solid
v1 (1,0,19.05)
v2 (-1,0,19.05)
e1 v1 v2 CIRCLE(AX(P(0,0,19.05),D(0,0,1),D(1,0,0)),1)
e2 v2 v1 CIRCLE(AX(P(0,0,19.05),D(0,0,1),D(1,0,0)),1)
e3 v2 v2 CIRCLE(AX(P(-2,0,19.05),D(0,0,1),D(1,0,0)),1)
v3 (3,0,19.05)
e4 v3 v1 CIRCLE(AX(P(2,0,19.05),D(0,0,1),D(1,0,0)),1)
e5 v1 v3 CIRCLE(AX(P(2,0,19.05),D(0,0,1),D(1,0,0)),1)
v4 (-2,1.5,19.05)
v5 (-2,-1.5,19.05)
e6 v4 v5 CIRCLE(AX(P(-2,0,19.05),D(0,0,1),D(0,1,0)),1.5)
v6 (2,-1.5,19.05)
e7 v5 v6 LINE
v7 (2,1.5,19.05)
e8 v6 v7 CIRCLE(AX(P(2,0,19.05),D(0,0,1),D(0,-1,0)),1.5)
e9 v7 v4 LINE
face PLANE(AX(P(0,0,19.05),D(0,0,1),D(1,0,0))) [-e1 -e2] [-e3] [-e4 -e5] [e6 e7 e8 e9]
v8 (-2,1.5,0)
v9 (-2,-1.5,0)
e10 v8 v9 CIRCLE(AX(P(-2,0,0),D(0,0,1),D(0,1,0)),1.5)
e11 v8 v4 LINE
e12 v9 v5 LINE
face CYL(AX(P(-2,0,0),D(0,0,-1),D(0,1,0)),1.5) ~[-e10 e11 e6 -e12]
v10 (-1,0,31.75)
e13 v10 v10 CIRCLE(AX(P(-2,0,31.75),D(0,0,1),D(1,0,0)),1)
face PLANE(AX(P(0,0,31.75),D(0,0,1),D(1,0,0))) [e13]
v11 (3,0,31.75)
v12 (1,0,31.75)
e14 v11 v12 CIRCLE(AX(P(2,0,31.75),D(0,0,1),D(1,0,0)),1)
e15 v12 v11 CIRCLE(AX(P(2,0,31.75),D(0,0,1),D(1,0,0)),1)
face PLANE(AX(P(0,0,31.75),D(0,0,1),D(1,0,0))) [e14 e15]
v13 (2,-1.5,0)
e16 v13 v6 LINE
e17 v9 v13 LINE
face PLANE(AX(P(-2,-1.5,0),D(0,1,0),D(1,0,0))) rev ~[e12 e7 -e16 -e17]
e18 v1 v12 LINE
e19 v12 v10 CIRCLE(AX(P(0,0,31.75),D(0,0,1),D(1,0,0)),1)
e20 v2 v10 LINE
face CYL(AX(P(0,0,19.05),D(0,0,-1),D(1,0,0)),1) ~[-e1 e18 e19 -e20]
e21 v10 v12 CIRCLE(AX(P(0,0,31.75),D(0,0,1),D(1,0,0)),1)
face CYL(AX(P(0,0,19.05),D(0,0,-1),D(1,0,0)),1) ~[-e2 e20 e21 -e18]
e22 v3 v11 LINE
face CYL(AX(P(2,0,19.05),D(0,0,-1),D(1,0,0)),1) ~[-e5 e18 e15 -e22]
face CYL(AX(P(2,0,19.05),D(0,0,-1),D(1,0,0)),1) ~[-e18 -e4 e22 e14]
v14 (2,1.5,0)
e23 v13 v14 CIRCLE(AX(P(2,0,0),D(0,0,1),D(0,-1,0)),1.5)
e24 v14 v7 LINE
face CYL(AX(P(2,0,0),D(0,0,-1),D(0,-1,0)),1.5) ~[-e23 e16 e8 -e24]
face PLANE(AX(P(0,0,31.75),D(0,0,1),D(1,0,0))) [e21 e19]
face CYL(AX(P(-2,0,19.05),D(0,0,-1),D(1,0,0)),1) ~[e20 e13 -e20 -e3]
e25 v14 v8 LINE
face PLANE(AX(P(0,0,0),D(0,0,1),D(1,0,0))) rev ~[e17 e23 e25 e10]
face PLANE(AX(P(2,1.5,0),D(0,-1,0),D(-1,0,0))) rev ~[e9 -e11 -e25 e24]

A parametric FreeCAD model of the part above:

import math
import FreeCAD as App
import Part
import Sketcher
from FreeCAD import Vector
Q = App.Units.Quantity

doc = App.newDocument("Part")
body = doc.addObject("PartDesign::Body", "Body")

sketch1 = body.newObject("Sketcher::SketchObject", "Sketch")
sketch1.AttachmentSupport = (doc.getObject("XY_Plane"), [""])
sketch1.MapMode = "FlatFace"
sketch1.addGeometry([
    Part.ArcOfCircle(Part.Circle(Vector(-2, 0, 0), Vector(0, 0, 1), 1.5), math.radians(90), math.radians(270)),
    Part.LineSegment(Vector(-2, -1.5, 0), Vector(2, -1.5, 0)),
    Part.ArcOfCircle(Part.Circle(Vector(2, 0, 0), Vector(0, 0, 1), 1.5), math.radians(-90), math.radians(90)),
    Part.LineSegment(Vector(2, 1.5, 0), Vector(-2, 1.5, 0)),
], False)
sketch1.addConstraint([
    Sketcher.Constraint("Tangent", 0, 2, 1, 1),
    Sketcher.Constraint("Tangent", 1, 2, 2, 1),
    Sketcher.Constraint("Tangent", 2, 2, 3, 1),
    Sketcher.Constraint("Tangent", 3, 2, 0, 1),
    Sketcher.Constraint("Horizontal", 1),
    Sketcher.Constraint("Horizontal", 3),
    Sketcher.Constraint("Symmetric", 0, 3, 2, 3, -1, 1),
    Sketcher.Constraint("Radius", 0, Q("1.5 mm")),
    Sketcher.Constraint("DistanceX", 1, 1, 1, 2, Q("4 mm")),
])
pad1 = body.newObject("PartDesign::Pad", "Pad")
pad1.Profile = sketch1
pad1.Length = 19.05

sketch2 = body.newObject("Sketcher::SketchObject", "Sketch001")
sketch2.AttachmentSupport = (doc.getObject("XY_Plane"), [""])
sketch2.MapMode = "FlatFace"
sketch2.AttachmentOffset = App.Placement(Vector(0, 0, 19.05), App.Rotation())
sketch2.addGeometry([
    Part.ArcOfCircle(Part.Circle(Vector(0, 0, 0), Vector(0, 0, 1), 1), math.radians(0), math.radians(180)),
    Part.ArcOfCircle(Part.Circle(Vector(0, 0, 0), Vector(0, 0, 1), 1), math.radians(180), math.radians(360)),
    Part.Circle(Vector(-2, 0, 0), Vector(0, 0, 1), 1),
    Part.Circle(Vector(2, 0, 0), Vector(0, 0, 1), 1),
], False)
sketch2.addConstraint([
    Sketcher.Constraint("Tangent", 0, 1, 1, 2),
    Sketcher.Constraint("Coincident", 1, 1, 0, 2),
    Sketcher.Constraint("Coincident", 0, 3, -1, 1),
    Sketcher.Constraint("Equal", 1, 2),
    Sketcher.Constraint("Equal", 2, 3),
    Sketcher.Constraint("Symmetric", 2, 3, 3, 3, -1, 1),
    Sketcher.Constraint("PointOnObject", 2, 3, -1),
    Sketcher.Constraint("PointOnObject", 0, 1, -1),
    Sketcher.Constraint("PointOnObject", 1, 1, -1),
    Sketcher.Constraint("Diameter", 2, Q("2 mm")),
    Sketcher.Constraint("DistanceX", 2, 3, -1, 1, Q("2 mm")),
])
pad2 = body.newObject("PartDesign::Pad", "Pad001")
pad2.Profile = sketch2
pad2.Length = 12.7

doc.recompute()
